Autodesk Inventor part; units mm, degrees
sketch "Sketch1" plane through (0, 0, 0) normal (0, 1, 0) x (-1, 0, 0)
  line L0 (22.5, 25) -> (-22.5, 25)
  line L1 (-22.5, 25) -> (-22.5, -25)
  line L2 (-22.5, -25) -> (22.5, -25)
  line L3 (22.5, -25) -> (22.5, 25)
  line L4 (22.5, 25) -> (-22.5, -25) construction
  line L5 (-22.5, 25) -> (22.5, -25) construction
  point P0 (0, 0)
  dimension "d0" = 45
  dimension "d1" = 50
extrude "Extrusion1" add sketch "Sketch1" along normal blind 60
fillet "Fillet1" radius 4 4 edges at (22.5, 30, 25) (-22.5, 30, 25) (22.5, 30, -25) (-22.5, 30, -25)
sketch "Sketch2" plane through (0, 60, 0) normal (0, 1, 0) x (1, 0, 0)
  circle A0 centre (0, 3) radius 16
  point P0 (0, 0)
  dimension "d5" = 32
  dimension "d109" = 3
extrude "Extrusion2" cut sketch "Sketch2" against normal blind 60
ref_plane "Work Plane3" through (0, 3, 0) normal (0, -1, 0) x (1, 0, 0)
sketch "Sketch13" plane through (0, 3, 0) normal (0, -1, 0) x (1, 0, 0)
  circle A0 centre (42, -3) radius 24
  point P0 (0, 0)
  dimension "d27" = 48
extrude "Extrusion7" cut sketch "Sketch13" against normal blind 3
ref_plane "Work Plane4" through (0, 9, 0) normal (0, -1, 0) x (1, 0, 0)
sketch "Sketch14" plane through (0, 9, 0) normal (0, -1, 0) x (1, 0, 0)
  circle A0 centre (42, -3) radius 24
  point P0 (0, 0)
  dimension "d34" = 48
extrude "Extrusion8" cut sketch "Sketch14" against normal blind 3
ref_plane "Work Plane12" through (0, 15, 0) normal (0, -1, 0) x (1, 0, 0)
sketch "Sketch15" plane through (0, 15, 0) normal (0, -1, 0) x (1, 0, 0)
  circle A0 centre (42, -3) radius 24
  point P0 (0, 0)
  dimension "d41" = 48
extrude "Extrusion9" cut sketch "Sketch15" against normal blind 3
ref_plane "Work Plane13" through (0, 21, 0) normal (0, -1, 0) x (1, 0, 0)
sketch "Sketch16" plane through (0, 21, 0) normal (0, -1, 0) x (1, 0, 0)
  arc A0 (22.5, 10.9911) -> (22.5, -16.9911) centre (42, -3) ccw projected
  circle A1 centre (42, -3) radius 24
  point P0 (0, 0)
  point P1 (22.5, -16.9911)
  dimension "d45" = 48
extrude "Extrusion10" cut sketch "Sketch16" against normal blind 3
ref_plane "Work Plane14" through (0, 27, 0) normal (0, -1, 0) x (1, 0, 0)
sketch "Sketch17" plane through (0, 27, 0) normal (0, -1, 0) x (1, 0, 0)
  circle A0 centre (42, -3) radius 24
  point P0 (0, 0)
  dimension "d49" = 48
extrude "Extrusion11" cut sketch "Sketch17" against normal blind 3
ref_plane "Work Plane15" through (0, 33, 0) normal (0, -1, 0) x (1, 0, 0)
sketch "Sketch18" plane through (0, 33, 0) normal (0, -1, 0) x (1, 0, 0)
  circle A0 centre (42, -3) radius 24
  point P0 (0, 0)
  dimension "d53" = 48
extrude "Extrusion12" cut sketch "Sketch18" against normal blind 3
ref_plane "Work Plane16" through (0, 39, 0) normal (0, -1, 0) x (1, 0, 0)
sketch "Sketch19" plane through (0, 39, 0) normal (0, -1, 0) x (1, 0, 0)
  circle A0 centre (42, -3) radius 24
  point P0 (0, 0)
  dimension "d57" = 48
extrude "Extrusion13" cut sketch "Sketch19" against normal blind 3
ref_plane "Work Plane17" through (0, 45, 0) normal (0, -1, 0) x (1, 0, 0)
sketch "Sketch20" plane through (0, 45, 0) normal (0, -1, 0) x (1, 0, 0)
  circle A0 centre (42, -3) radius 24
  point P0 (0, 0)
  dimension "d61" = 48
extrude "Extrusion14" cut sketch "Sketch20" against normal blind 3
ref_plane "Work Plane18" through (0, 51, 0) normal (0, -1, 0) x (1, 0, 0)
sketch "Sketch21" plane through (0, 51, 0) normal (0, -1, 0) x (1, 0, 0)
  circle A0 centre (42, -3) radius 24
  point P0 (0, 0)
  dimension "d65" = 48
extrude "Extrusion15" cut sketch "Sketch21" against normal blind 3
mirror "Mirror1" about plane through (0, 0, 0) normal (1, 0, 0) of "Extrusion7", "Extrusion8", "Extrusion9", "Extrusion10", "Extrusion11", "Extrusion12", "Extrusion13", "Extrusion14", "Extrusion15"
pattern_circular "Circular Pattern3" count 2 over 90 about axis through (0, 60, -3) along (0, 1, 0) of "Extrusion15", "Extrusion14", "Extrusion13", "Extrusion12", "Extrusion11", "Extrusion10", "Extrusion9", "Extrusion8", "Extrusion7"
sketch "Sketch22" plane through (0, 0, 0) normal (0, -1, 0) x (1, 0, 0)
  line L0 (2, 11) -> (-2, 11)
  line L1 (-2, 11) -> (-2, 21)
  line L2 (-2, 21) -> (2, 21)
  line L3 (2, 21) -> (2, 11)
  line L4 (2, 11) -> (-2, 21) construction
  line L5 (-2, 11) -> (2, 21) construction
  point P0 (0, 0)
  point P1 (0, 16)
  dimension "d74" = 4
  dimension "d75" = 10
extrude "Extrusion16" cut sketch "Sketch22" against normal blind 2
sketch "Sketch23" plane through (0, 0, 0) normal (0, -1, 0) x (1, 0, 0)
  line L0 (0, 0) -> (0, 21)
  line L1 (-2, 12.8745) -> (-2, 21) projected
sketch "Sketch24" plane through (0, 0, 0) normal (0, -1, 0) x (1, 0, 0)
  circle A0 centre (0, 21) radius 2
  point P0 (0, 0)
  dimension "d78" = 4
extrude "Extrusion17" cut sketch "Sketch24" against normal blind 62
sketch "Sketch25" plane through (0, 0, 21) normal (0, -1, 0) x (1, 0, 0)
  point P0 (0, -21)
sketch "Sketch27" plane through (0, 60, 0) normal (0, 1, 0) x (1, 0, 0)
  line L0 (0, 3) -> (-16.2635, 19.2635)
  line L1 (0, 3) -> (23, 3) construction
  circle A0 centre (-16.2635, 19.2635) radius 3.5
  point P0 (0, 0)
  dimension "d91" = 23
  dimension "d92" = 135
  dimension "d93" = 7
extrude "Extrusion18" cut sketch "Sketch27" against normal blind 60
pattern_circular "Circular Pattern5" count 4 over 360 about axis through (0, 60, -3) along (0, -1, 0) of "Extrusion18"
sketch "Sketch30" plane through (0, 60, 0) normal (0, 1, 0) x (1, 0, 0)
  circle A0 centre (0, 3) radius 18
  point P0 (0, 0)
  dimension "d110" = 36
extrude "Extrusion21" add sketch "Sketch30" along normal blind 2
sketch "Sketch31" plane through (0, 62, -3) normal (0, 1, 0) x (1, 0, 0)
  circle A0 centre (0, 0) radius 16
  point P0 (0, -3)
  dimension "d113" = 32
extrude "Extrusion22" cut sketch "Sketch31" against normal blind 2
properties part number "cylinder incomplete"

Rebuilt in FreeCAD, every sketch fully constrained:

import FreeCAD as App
import Part
import Sketcher

V = App.Vector


def edges_at(feature, points):
    """Names of the edges that pass closest to the given points."""
    edges = feature.Shape.Edges
    near = lambda p: min(range(len(edges)), key=lambda i: edges[i].distToShape(Part.Vertex(*p))[0])
    return sorted({f"Edge{near(p) + 1}" for p in points})


def add_polygon(sketch, points):
    """Adds a closed chain of lines whose ends are joined by coincident constraints."""
    first, n = sketch.GeometryCount, len(points)
    for a, b in zip(points, points[1:] + points[:1]):
        sketch.addGeometry(Part.LineSegment(App.Vector(*a, 0), App.Vector(*b, 0)), False)
    for i in range(n):
        sketch.addConstraint(Sketcher.Constraint("Coincident", first + i, 2, first + (i + 1) % n, 1))

doc = App.newDocument("Part")
body = doc.addObject("PartDesign::Body", "Body")

sketch1 = body.newObject("Sketcher::SketchObject", "Sketch")
sketch1.AttachmentSupport = (doc.getObject("XZ_Plane"), [""])
sketch1.MapMode = "FlatFace"
add_polygon(sketch1, [(-22, -25), (-22, 25), (22, 25), (22, -25)])
sketch1.addConstraint(Sketcher.Constraint("Vertical", 0))
sketch1.addConstraint(Sketcher.Constraint("Horizontal", 1))
sketch1.addConstraint(Sketcher.Constraint("Vertical", 2))
sketch1.addConstraint(Sketcher.Constraint("Horizontal", 3))
sketch1.addConstraint(Sketcher.Constraint("Symmetric", 0, 2, 2, 2, -1, 1))
sketch1.addConstraint(Sketcher.Constraint("DistanceX", 1, 1, 1, 2, 45.0))
sketch1.addConstraint(Sketcher.Constraint("DistanceY", 0, 1, 0, 2, 50.0))
pad1 = body.newObject("PartDesign::Pad", "Pad")
pad1.Profile = sketch1
pad1.Length = 60
pad1.Reversed = True
doc.recompute()

fillet = body.newObject("PartDesign::Fillet", "Fillet")
fillet.Base = (pad1, edges_at(pad1, [
    (22.5, 30, 25),
    (-22.5, 30, 25),
    (22.5, 30, -25),
    (-22.5, 30, -25),
]))
fillet.Radius = 4

sketch2 = body.newObject("Sketcher::SketchObject", "Sketch001")
sketch2.AttachmentSupport = (doc.getObject("XZ_Plane"), [""])
sketch2.MapMode = "FlatFace"
sketch2.AttachmentOffset = App.Placement(V(0, 0, -60), App.Rotation())
sketch2.addGeometry(Part.Circle(V(0, -3, 0), V(0, 0, 1), 16), False)
sketch2.addConstraint(Sketcher.Constraint("PointOnObject", 0, 3, -2))
sketch2.addConstraint(Sketcher.Constraint("Diameter", 0, 32.0))
sketch2.addConstraint(Sketcher.Constraint("DistanceY", 0, 3, -1, 1, 3.0))
pocket1 = body.newObject("PartDesign::Pocket", "Pocket")
pocket1.Profile = sketch2
pocket1.Length = 60
pocket1.Reversed = True

sketch3 = body.newObject("Sketcher::SketchObject", "Sketch002")
sketch3.AttachmentSupport = (doc.getObject("XZ_Plane"), [""])
sketch3.MapMode = "FlatFace"
sketch3.AttachmentOffset = App.Placement(V(0, 0, -3), App.Rotation())
sketch3.addGeometry(Part.Circle(V(42, -3, 0), V(0, 0, 1), 24), False)
sketch3.addConstraint(Sketcher.Constraint("Diameter", 0, 48.0))
sketch3.addConstraint(Sketcher.Constraint("DistanceX", -1, 1, 0, 3, 42.0))
sketch3.addConstraint(Sketcher.Constraint("DistanceY", 0, 3, -1, 1, 3.0))
pocket2 = body.newObject("PartDesign::Pocket", "Pocket001")
pocket2.Profile = sketch3
pocket2.Length = 3

sketch4 = body.newObject("Sketcher::SketchObject", "Sketch003")
sketch4.AttachmentSupport = (doc.getObject("XZ_Plane"), [""])
sketch4.MapMode = "FlatFace"
sketch4.AttachmentOffset = App.Placement(V(0, 0, -9), App.Rotation())
sketch4.addGeometry(Part.Circle(V(42, -3, 0), V(0, 0, 1), 24), False)
sketch4.addConstraint(Sketcher.Constraint("Diameter", 0, 48.0))
sketch4.addConstraint(Sketcher.Constraint("DistanceX", -1, 1, 0, 3, 42.0))
sketch4.addConstraint(Sketcher.Constraint("DistanceY", 0, 3, -1, 1, 3.0))
pocket3 = body.newObject("PartDesign::Pocket", "Pocket002")
pocket3.Profile = sketch4
pocket3.Length = 3

sketch5 = body.newObject("Sketcher::SketchObject", "Sketch004")
sketch5.AttachmentSupport = (doc.getObject("XZ_Plane"), [""])
sketch5.MapMode = "FlatFace"
sketch5.AttachmentOffset = App.Placement(V(0, 0, -15), App.Rotation())
sketch5.addGeometry(Part.Circle(V(42, -3, 0), V(0, 0, 1), 24), False)
sketch5.addConstraint(Sketcher.Constraint("Diameter", 0, 48.0))
sketch5.addConstraint(Sketcher.Constraint("DistanceX", -1, 1, 0, 3, 42.0))
sketch5.addConstraint(Sketcher.Constraint("DistanceY", 0, 3, -1, 1, 3.0))
pocket4 = body.newObject("PartDesign::Pocket", "Pocket003")
pocket4.Profile = sketch5
pocket4.Length = 3

sketch6 = body.newObject("Sketcher::SketchObject", "Sketch005")
sketch6.AttachmentSupport = (doc.getObject("XZ_Plane"), [""])
sketch6.MapMode = "FlatFace"
sketch6.AttachmentOffset = App.Placement(V(0, 0, -21), App.Rotation())
sketch6.addGeometry(Part.Circle(V(42, -3, 0), V(0, 0, 1), 24), False)
sketch6.addConstraint(Sketcher.Constraint("Diameter", 0, 48.0))
sketch6.addConstraint(Sketcher.Constraint("DistanceX", -1, 1, 0, 3, 42.0))
sketch6.addConstraint(Sketcher.Constraint("DistanceY", 0, 3, -1, 1, 3.0))
pocket5 = body.newObject("PartDesign::Pocket", "Pocket004")
pocket5.Profile = sketch6
pocket5.Length = 3

sketch7 = body.newObject("Sketcher::SketchObject", "Sketch006")
sketch7.AttachmentSupport = (doc.getObject("XZ_Plane"), [""])
sketch7.MapMode = "FlatFace"
sketch7.AttachmentOffset = App.Placement(V(0, 0, -27), App.Rotation())
sketch7.addGeometry(Part.Circle(V(42, -3, 0), V(0, 0, 1), 24), False)
sketch7.addConstraint(Sketcher.Constraint("Diameter", 0, 48.0))
sketch7.addConstraint(Sketcher.Constraint("DistanceX", -1, 1, 0, 3, 42.0))
sketch7.addConstraint(Sketcher.Constraint("DistanceY", 0, 3, -1, 1, 3.0))
pocket6 = body.newObject("PartDesign::Pocket", "Pocket005")
pocket6.Profile = sketch7
pocket6.Length = 3

sketch8 = body.newObject("Sketcher::SketchObject", "Sketch007")
sketch8.AttachmentSupport = (doc.getObject("XZ_Plane"), [""])
sketch8.MapMode = "FlatFace"
sketch8.AttachmentOffset = App.Placement(V(0, 0, -33), App.Rotation())
sketch8.addGeometry(Part.Circle(V(42, -3, 0), V(0, 0, 1), 24), False)
sketch8.addConstraint(Sketcher.Constraint("Diameter", 0, 48.0))
sketch8.addConstraint(Sketcher.Constraint("DistanceX", -1, 1, 0, 3, 42.0))
sketch8.addConstraint(Sketcher.Constraint("DistanceY", 0, 3, -1, 1, 3.0))
pocket7 = body.newObject("PartDesign::Pocket", "Pocket006")
pocket7.Profile = sketch8
pocket7.Length = 3

sketch9 = body.newObject("Sketcher::SketchObject", "Sketch008")
sketch9.AttachmentSupport = (doc.getObject("XZ_Plane"), [""])
sketch9.MapMode = "FlatFace"
sketch9.AttachmentOffset = App.Placement(V(0, 0, -39), App.Rotation())
sketch9.addGeometry(Part.Circle(V(42, -3, 0), V(0, 0, 1), 24), False)
sketch9.addConstraint(Sketcher.Constraint("Diameter", 0, 48.0))
sketch9.addConstraint(Sketcher.Constraint("DistanceX", -1, 1, 0, 3, 42.0))
sketch9.addConstraint(Sketcher.Constraint("DistanceY", 0, 3, -1, 1, 3.0))
pocket8 = body.newObject("PartDesign::Pocket", "Pocket007")
pocket8.Profile = sketch9
pocket8.Length = 3

sketch10 = body.newObject("Sketcher::SketchObject", "Sketch009")
sketch10.AttachmentSupport = (doc.getObject("XZ_Plane"), [""])
sketch10.MapMode = "FlatFace"
sketch10.AttachmentOffset = App.Placement(V(0, 0, -45), App.Rotation())
sketch10.addGeometry(Part.Circle(V(42, -3, 0), V(0, 0, 1), 24), False)
sketch10.addConstraint(Sketcher.Constraint("Diameter", 0, 48.0))
sketch10.addConstraint(Sketcher.Constraint("DistanceX", -1, 1, 0, 3, 42.0))
sketch10.addConstraint(Sketcher.Constraint("DistanceY", 0, 3, -1, 1, 3.0))
pocket9 = body.newObject("PartDesign::Pocket", "Pocket008")
pocket9.Profile = sketch10
pocket9.Length = 3

sketch11 = body.newObject("Sketcher::SketchObject", "Sketch010")
sketch11.AttachmentSupport = (doc.getObject("XZ_Plane"), [""])
sketch11.MapMode = "FlatFace"
sketch11.AttachmentOffset = App.Placement(V(0, 0, -51), App.Rotation())
sketch11.addGeometry(Part.Circle(V(42, -3, 0), V(0, 0, 1), 24), False)
sketch11.addConstraint(Sketcher.Constraint("Diameter", 0, 48.0))
sketch11.addConstraint(Sketcher.Constraint("DistanceX", -1, 1, 0, 3, 42.0))
sketch11.addConstraint(Sketcher.Constraint("DistanceY", 0, 3, -1, 1, 3.0))
pocket10 = body.newObject("PartDesign::Pocket", "Pocket009")
pocket10.Profile = sketch11
pocket10.Length = 3
doc.recompute()

mirrored = body.newObject("PartDesign::Mirrored", "Mirrored")
mirrored.Originals = [pocket2, pocket3, pocket4, pocket5, pocket6, pocket7, pocket8, pocket9, pocket10]
mirrored.MirrorPlane = (doc.getObject("YZ_Plane"), [""])
body.Tip = mirrored
doc.recompute()

datumline = body.newObject("PartDesign::Line", "DatumLine")
datumline.Placement = App.Placement(V(0, 0, -3), App.Rotation(V(0, 0, 1), V(0, 1, 0)))
polarpattern = body.newObject("PartDesign::PolarPattern", "PolarPattern")
polarpattern.Originals = [pocket10, pocket9, pocket8, pocket7, pocket6, pocket5, pocket4, pocket3, pocket2]
polarpattern.Axis = (datumline, [""])
polarpattern.Angle = 90
polarpattern.Occurrences = 2
body.Tip = polarpattern

sketch12 = body.newObject("Sketcher::SketchObject", "Sketch011")
sketch12.AttachmentSupport = (doc.getObject("XZ_Plane"), [""])
sketch12.MapMode = "FlatFace"
add_polygon(sketch12, [(-2, 11), (2, 11), (2, 21), (-2, 21)])
sketch12.addConstraint(Sketcher.Constraint("Horizontal", 0))
sketch12.addConstraint(Sketcher.Constraint("Vertical", 1))
sketch12.addConstraint(Sketcher.Constraint("Horizontal", 2))
sketch12.addConstraint(Sketcher.Constraint("Vertical", 3))
sketch12.addConstraint(Sketcher.Constraint("DistanceX", 0, 1, 0, 2, 4.0))
sketch12.addConstraint(Sketcher.Constraint("DistanceY", 1, 1, 1, 2, 10.0))
sketch12.addConstraint(Sketcher.Constraint("DistanceX", -1, 1, 0, 2, 2.0))
sketch12.addConstraint(Sketcher.Constraint("DistanceY", -1, 1, 0, 2, 11.0))
pocket11 = body.newObject("PartDesign::Pocket", "Pocket010")
pocket11.Profile = sketch12
pocket11.Length = 2

sketch13 = body.newObject("Sketcher::SketchObject", "Sketch012")
sketch13.AttachmentSupport = (doc.getObject("XZ_Plane"), [""])
sketch13.MapMode = "FlatFace"
sketch13.addGeometry(Part.Circle(V(0, 21, 0), V(0, 0, 1), 2), False)
sketch13.addConstraint(Sketcher.Constraint("PointOnObject", 0, 3, -2))
sketch13.addConstraint(Sketcher.Constraint("Diameter", 0, 4.0))
sketch13.addConstraint(Sketcher.Constraint("DistanceY", -1, 1, 0, 3, 21.0))
pocket12 = body.newObject("PartDesign::Pocket", "Pocket011")
pocket12.Profile = sketch13
pocket12.Length = 62

sketch14 = body.newObject("Sketcher::SketchObject", "Sketch013")
sketch14.AttachmentSupport = (doc.getObject("XZ_Plane"), [""])
sketch14.MapMode = "FlatFace"
sketch14.AttachmentOffset = App.Placement(V(0, 0, -60), App.Rotation())
sketch14.addGeometry(Part.Circle(V(-16.3, -19.3, 0), V(0, 0, 1), 3.5), False)
sketch14.addConstraint(Sketcher.Constraint("Diameter", 0, 7.0))
sketch14.addConstraint(Sketcher.Constraint("DistanceX", 0, 3, -1, 1, 16.2635))
sketch14.addConstraint(Sketcher.Constraint("DistanceY", 0, 3, -1, 1, 19.2635))
pocket13 = body.newObject("PartDesign::Pocket", "Pocket012")
pocket13.Profile = sketch14
pocket13.Length = 60
pocket13.Reversed = True
doc.recompute()

datumline2 = body.newObject("PartDesign::Line", "DatumLine001")
datumline2.Placement = App.Placement(V(0, 0, -3), App.Rotation(V(0, 0, 1), V(0, 1, 0)))
polarpattern2 = body.newObject("PartDesign::PolarPattern", "PolarPattern001")
polarpattern2.Originals = [pocket13]
polarpattern2.Axis = (datumline2, [""])
polarpattern2.Angle = 360
polarpattern2.Occurrences = 4
body.Tip = polarpattern2

sketch15 = body.newObject("Sketcher::SketchObject", "Sketch014")
sketch15.AttachmentSupport = (doc.getObject("XZ_Plane"), [""])
sketch15.MapMode = "FlatFace"
sketch15.AttachmentOffset = App.Placement(V(0, 0, -60), App.Rotation())
sketch15.addGeometry(Part.Circle(V(0, -3, 0), V(0, 0, 1), 18), False)
sketch15.addConstraint(Sketcher.Constraint("PointOnObject", 0, 3, -2))
sketch15.addConstraint(Sketcher.Constraint("Diameter", 0, 36.0))
sketch15.addConstraint(Sketcher.Constraint("DistanceY", 0, 3, -1, 1, 3.0))
pad2 = body.newObject("PartDesign::Pad", "Pad001")
pad2.Profile = sketch15
pad2.Length = 2
pad2.Reversed = True

sketch16 = body.newObject("Sketcher::SketchObject", "Sketch015")
sketch16.AttachmentSupport = (doc.getObject("XZ_Plane"), [""])
sketch16.MapMode = "FlatFace"
sketch16.AttachmentOffset = App.Placement(V(0, 0, -62), App.Rotation())
sketch16.addGeometry(Part.Circle(V(0, -3, 0), V(0, 0, 1), 16), False)
sketch16.addConstraint(Sketcher.Constraint("PointOnObject", 0, 3, -2))
sketch16.addConstraint(Sketcher.Constraint("Diameter", 0, 32.0))
sketch16.addConstraint(Sketcher.Constraint("DistanceY", 0, 3, -1, 1, 3.0))
pocket14 = body.newObject("PartDesign::Pocket", "Pocket013")
pocket14.Profile = sketch16
pocket14.Length = 2
pocket14.Reversed = True

doc.recompute()
